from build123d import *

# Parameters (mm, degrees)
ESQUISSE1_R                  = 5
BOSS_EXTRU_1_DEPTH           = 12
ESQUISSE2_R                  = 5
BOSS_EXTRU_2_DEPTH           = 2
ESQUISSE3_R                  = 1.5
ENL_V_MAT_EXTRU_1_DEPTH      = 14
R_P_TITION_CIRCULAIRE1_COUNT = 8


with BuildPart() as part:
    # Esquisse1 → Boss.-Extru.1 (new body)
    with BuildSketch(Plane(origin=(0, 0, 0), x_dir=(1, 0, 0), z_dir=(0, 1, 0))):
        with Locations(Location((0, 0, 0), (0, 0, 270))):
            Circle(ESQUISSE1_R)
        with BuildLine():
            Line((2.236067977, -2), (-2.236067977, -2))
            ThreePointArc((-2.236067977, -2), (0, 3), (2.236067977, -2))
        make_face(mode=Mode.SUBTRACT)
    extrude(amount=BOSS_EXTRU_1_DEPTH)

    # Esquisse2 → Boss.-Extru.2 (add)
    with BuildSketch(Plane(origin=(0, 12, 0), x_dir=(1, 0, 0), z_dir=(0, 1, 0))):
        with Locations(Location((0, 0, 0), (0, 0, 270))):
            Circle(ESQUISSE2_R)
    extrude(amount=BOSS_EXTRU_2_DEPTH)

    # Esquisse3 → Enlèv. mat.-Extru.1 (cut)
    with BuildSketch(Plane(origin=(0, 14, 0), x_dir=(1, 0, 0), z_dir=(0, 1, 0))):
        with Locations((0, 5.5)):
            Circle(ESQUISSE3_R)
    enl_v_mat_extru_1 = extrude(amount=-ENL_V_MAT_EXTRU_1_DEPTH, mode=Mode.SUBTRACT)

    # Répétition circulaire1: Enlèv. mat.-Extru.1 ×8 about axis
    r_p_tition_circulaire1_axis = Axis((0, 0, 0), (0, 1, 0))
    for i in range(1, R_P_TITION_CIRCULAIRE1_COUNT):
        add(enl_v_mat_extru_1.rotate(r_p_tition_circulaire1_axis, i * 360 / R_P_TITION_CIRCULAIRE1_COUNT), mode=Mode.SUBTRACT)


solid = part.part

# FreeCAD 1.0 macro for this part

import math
import FreeCAD as App
import Part
import Sketcher

doc = App.newDocument("Part")
body = doc.addObject("PartDesign::Body", "Body")

# Sketch on XZ plane
sketch1 = doc.addObject("Sketcher::SketchObject", "Sketch")
body.addObject(sketch1)
sketch1.AttachmentSupport = (doc.XZ_Plane, [""])
sketch1.MapMode = "FlatFace"
sketch1.addGeometry([
    Part.Circle(App.Vector(0, 0, 0), App.Vector(0, 0, 1), 5),
    Part.ArcOfCircle(Part.Circle(App.Vector(0, 0, 0), App.Vector(0, 0, 1), 3), math.radians(138), math.radians(402)),
    Part.LineSegment(App.Vector(2.2, 2, 0), App.Vector(-2.2, 2, 0)),
], False)
sketch1.addConstraint([
    Sketcher.Constraint("Coincident", 1, 1, 2, 2),
    Sketcher.Constraint("Coincident", 2, 1, 1, 2),
    Sketcher.Constraint("Horizontal", 2),
    Sketcher.Constraint("Coincident", 0, 3, -1, 1),
    Sketcher.Constraint("Coincident", 1, 3, -1, 1),
    Sketcher.Constraint("Diameter", 0, 10.0),
    Sketcher.Constraint("Radius", 1, 3.0),
    Sketcher.Constraint("DistanceY", -1, 1, 1, 1, 2.0),
])
pad1 = doc.addObject("PartDesign::Pad", "Pad")
body.addObject(pad1)
pad1.Profile = sketch1
pad1.Length = 12
pad1.Reversed = True

# Sketch on XZ plane
sketch2 = doc.addObject("Sketcher::SketchObject", "Sketch001")
body.addObject(sketch2)
sketch2.AttachmentSupport = (doc.XZ_Plane, [""])
sketch2.MapMode = "FlatFace"
sketch2.AttachmentOffset = App.Placement(App.Vector(0, 0, -12), App.Rotation())
sketch2.addGeometry(Part.Circle(App.Vector(0, 0, 0), App.Vector(0, 0, 1), 5), False)
sketch2.addConstraint([
    Sketcher.Constraint("Coincident", 0, 3, -1, 1),
    Sketcher.Constraint("Diameter", 0, 10.0),
])
pad2 = doc.addObject("PartDesign::Pad", "Pad001")
body.addObject(pad2)
pad2.Profile = sketch2
pad2.Length = 2
pad2.Reversed = True

# Sketch on XZ plane
sketch3 = doc.addObject("Sketcher::SketchObject", "Sketch002")
body.addObject(sketch3)
sketch3.AttachmentSupport = (doc.XZ_Plane, [""])
sketch3.MapMode = "FlatFace"
sketch3.AttachmentOffset = App.Placement(App.Vector(0, 0, -14), App.Rotation())
sketch3.addGeometry(Part.Circle(App.Vector(0, -5.5, 0), App.Vector(0, 0, 1), 1.5), False)
sketch3.addConstraint([
    Sketcher.Constraint("PointOnObject", 0, 3, -2),
    Sketcher.Constraint("Diameter", 0, 3.0),
    Sketcher.Constraint("DistanceY", 0, 3, -1, 1, 5.5),
])
pocket1 = doc.addObject("PartDesign::Pocket", "Pocket")
body.addObject(pocket1)
pocket1.Profile = sketch3
pocket1.Length = 14
pocket1.Reversed = True
doc.recompute()

polarpattern = doc.addObject("PartDesign::PolarPattern", "PolarPattern")
body.addObject(polarpattern)
polarpattern.Originals = [pocket1]
polarpattern.Axis = (doc.Y_Axis, [""])
polarpattern.Angle = 360
polarpattern.Occurrences = 8
body.Tip = polarpattern

doc.recompute()
